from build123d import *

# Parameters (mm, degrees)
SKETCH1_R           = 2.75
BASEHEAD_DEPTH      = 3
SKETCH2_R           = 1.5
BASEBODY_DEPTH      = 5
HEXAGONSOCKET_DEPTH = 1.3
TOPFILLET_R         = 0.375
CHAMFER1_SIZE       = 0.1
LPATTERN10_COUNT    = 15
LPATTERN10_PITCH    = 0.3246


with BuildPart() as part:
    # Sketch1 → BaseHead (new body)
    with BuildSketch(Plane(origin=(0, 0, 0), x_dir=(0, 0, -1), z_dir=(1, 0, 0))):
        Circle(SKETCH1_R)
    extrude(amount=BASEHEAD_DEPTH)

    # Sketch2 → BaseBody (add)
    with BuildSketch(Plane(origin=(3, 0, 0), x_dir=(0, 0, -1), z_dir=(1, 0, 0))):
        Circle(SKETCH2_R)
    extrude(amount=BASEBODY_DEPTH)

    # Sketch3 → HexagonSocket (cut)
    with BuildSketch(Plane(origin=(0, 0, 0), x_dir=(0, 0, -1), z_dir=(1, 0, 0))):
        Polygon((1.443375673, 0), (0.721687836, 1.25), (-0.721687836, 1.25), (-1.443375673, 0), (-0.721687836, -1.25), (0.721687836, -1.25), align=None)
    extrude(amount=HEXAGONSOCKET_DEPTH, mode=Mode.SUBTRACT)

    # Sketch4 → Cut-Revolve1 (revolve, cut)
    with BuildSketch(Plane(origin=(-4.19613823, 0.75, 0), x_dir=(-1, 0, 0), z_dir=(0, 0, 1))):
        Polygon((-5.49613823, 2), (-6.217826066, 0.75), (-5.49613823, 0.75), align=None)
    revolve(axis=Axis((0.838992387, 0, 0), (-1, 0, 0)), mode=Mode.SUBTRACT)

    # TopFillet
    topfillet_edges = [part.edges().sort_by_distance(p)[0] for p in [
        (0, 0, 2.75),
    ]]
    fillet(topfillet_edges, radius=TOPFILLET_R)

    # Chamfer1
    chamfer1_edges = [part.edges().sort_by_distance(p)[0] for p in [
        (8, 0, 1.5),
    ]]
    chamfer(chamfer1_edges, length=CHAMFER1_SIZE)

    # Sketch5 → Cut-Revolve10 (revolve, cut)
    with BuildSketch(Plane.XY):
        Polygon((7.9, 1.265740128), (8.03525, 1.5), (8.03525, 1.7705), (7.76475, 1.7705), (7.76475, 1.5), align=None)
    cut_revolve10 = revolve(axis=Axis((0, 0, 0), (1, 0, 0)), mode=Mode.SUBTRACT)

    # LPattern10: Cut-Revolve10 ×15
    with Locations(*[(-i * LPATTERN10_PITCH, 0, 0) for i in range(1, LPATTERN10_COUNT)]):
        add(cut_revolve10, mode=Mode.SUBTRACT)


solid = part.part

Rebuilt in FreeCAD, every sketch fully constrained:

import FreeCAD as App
import Part
import Sketcher
from FreeCAD import Vector
Q = App.Units.Quantity


def edges_at(feature, points):
    """Names of the edges that pass closest to the given points."""
    edges = feature.Shape.Edges
    near = lambda p: min(range(len(edges)), key=lambda i: edges[i].distToShape(Part.Vertex(*p))[0])
    return sorted({f"Edge{near(p) + 1}" for p in points})


def add_polygon(sketch, points):
    """Adds a closed chain of lines whose ends are joined by coincident constraints."""
    first, n = sketch.GeometryCount, len(points)
    for a, b in zip(points, points[1:] + points[:1]):
        sketch.addGeometry(Part.LineSegment(App.Vector(*a, 0), App.Vector(*b, 0)), False)
    for i in range(n):
        sketch.addConstraint(Sketcher.Constraint("Coincident", first + i, 2, first + (i + 1) % n, 1))

doc = App.newDocument("Part")
params = doc.addObject("Spreadsheet::Sheet", "Params")
for row, (alias, value) in enumerate([
    ("sketch1_diameter", "5.5 mm"),
    ("pad1_length", "3 mm"),
    ("sketch2_diameter", "3 mm"),
    ("pad2_length", "5 mm"),
    ("pocket1_length", "1.3 mm"),
    ("sketch4_height", "1.25 mm"),
    ("groove_angle", "360 deg"),
    ("fillet_radius", "0.375 mm"),
    ("chamfer_size", "0.1 mm"),
    ("groove2_angle", "360 deg"),
    ("linearpattern_pitch", "0.3246 mm"),
], start=1):
    params.set(f"A{row}", alias)
    params.set(f"B{row}", "=" + value)
    params.setAlias(f"B{row}", alias)

body = doc.addObject("PartDesign::Body", "Body")

# Sketch on YZ plane
sketch1 = doc.addObject("Sketcher::SketchObject", "Sketch")
body.addObject(sketch1)
sketch1.AttachmentSupport = (doc.YZ_Plane, [""])
sketch1.MapMode = "FlatFace"
sketch1.addGeometry(Part.Circle(Vector(0, 0, 0), Vector(0, 0, 1), 2.8), False)
sketch1.addConstraint(Sketcher.Constraint("Coincident", 0, 3, -1, 1))
sketch1.addConstraint(Sketcher.Constraint("Diameter", 0, 5.5))
sketch1.setExpression("Constraints[1]", "Params.sketch1_diameter")
pad1 = doc.addObject("PartDesign::Pad", "Pad")
body.addObject(pad1)
pad1.Profile = sketch1
pad1.setExpression("Length", "Params.pad1_length")

# Sketch on YZ plane
sketch2 = doc.addObject("Sketcher::SketchObject", "Sketch001")
body.addObject(sketch2)
sketch2.AttachmentSupport = (doc.YZ_Plane, [""])
sketch2.MapMode = "FlatFace"
sketch2.AttachmentOffset = App.Placement(Vector(0, 0, 3), App.Rotation())
sketch2.addGeometry(Part.Circle(Vector(0, 0, 0), Vector(0, 0, 1), 1.5), False)
sketch2.addConstraint(Sketcher.Constraint("Coincident", 0, 3, -1, 1))
sketch2.addConstraint(Sketcher.Constraint("Diameter", 0, 3.0))
sketch2.setExpression("Constraints[1]", "Params.sketch2_diameter")
pad2 = doc.addObject("PartDesign::Pad", "Pad001")
body.addObject(pad2)
pad2.Profile = sketch2
pad2.setExpression("Length", "Params.pad2_length")

# Sketch on YZ plane
sketch3 = doc.addObject("Sketcher::SketchObject", "Sketch002")
body.addObject(sketch3)
sketch3.AttachmentSupport = (doc.YZ_Plane, [""])
sketch3.MapMode = "FlatFace"
add_polygon(sketch3, [(0, -1.4), (1.2, -0.7), (1.2, 0.7), (0, 1.4), (-1.2, 0.7), (-1.2, -0.7)])  # lines 0-5
sketch3.addConstraint(Sketcher.Constraint("Vertical", 1))
sketch3.addConstraint(Sketcher.Constraint("Vertical", 4))
sketch3.addConstraint(Sketcher.Constraint("Symmetric", 0, 2, 3, 2, -1, 1))
sketch3.addConstraint(Sketcher.Constraint("Symmetric", 2, 2, 5, 2, -1, 1))
sketch3.addConstraint(Sketcher.Constraint("PointOnObject", 2, 2, -2))
sketch3.addConstraint(Sketcher.Constraint("Parallel", 2, 5))
sketch3.addConstraint(Sketcher.Constraint("Horizontal", 1, 2, 3, 2))
sketch3.addConstraint(Sketcher.Constraint("Angle", 0, Q("30 deg")))
sketch3.addConstraint(Sketcher.Constraint("DistanceX", 3, 2, 1, 2, 2.5))
sketch3.addConstraint(Sketcher.Constraint("DistanceY", 1, 1, 1, 2, 1.443376))
pocket1 = doc.addObject("PartDesign::Pocket", "Pocket")
body.addObject(pocket1)
pocket1.Profile = sketch3
pocket1.setExpression("Length", "Params.pocket1_length")
pocket1.Reversed = True

# Sketch on XY plane
sketch4 = doc.addObject("Sketcher::SketchObject", "Sketch003")
body.addObject(sketch4)
sketch4.AttachmentSupport = (doc.XY_Plane, [""])
sketch4.MapMode = "FlatFace"
add_polygon(sketch4, [(1.3, -1.2), (2, 0), (1.3, 0)])  # lines 0-2
sketch4.addConstraint(Sketcher.Constraint("Horizontal", 1))
sketch4.addConstraint(Sketcher.Constraint("Vertical", 2))
sketch4.addConstraint(Sketcher.Constraint("PointOnObject", 0, 2, -1))
sketch4.addConstraint(Sketcher.Constraint("Angle", 0, Q("60 deg")))
sketch4.addConstraint(Sketcher.Constraint("DistanceY", 2, 2, 2, 1, 1.25))
sketch4.addConstraint(Sketcher.Constraint("DistanceX", -1, 1, 1, 2, 1.3))
sketch4.setExpression("Constraints[7]", "Params.sketch4_height")
groove = doc.addObject("PartDesign::Groove", "Groove")
body.addObject(groove)
groove.Profile = sketch4
groove.ReferenceAxis = (sketch4, ["H_Axis"])
groove.setExpression("Angle", "Params.groove_angle")
doc.recompute()

fillet = doc.addObject("PartDesign::Fillet", "Fillet")
body.addObject(fillet)
fillet.Base = (groove, edges_at(groove, [(0, 0, 2.75)]))
fillet.setExpression("Radius", "Params.fillet_radius")
doc.recompute()

chamfer = doc.addObject("PartDesign::Chamfer", "Chamfer")
body.addObject(chamfer)
chamfer.Base = (fillet, edges_at(fillet, [(8, 0, 1.5)]))
chamfer.setExpression("Size", "Params.chamfer_size")

# Sketch on XY plane
sketch5 = doc.addObject("Sketcher::SketchObject", "Sketch004")
body.addObject(sketch5)
sketch5.AttachmentSupport = (doc.XY_Plane, [""])
sketch5.MapMode = "FlatFace"
add_polygon(sketch5, [(7.9, 1.27), (8.04, 1.5), (8.04, 1.77), (7.76, 1.77), (7.76, 1.5)])  # lines 0-4
sketch5.addConstraint(Sketcher.Constraint("Vertical", 1))
sketch5.addConstraint(Sketcher.Constraint("Horizontal", 2))
sketch5.addConstraint(Sketcher.Constraint("Vertical", 3))
sketch5.addConstraint(Sketcher.Constraint("Horizontal", 0, 2, 3, 2))
sketch5.addConstraint(Sketcher.Constraint("Equal", 2, 1))
sketch5.addConstraint(Sketcher.Constraint("Equal", 0, 4))
sketch5.addConstraint(Sketcher.Constraint("Angle", 0, Q("60 deg")))
sketch5.addConstraint(Sketcher.Constraint("DistanceY", -1, 1, 0, 2, 1.5))
sketch5.addConstraint(Sketcher.Constraint("DistanceX", -1, 1, 4, 2, 7.9))
sketch5.addConstraint(Sketcher.Constraint("DistanceX", 2, 2, 2, 1, 0.2705))
groove2 = doc.addObject("PartDesign::Groove", "Groove001")
body.addObject(groove2)
groove2.Profile = sketch5
groove2.ReferenceAxis = (sketch5, ["H_Axis"])
groove2.setExpression("Angle", "Params.groove2_angle")
doc.recompute()

linearpattern = doc.addObject("PartDesign::LinearPattern", "LinearPattern")
body.addObject(linearpattern)
linearpattern.Originals = [groove2]
linearpattern.Direction = (doc.X_Axis, [""])
linearpattern.Mode = "offset"
linearpattern.setExpression("Offset", "Params.linearpattern_pitch")
linearpattern.Occurrences = 15
linearpattern.Reversed = True
body.Tip = linearpattern

doc.recompute()
